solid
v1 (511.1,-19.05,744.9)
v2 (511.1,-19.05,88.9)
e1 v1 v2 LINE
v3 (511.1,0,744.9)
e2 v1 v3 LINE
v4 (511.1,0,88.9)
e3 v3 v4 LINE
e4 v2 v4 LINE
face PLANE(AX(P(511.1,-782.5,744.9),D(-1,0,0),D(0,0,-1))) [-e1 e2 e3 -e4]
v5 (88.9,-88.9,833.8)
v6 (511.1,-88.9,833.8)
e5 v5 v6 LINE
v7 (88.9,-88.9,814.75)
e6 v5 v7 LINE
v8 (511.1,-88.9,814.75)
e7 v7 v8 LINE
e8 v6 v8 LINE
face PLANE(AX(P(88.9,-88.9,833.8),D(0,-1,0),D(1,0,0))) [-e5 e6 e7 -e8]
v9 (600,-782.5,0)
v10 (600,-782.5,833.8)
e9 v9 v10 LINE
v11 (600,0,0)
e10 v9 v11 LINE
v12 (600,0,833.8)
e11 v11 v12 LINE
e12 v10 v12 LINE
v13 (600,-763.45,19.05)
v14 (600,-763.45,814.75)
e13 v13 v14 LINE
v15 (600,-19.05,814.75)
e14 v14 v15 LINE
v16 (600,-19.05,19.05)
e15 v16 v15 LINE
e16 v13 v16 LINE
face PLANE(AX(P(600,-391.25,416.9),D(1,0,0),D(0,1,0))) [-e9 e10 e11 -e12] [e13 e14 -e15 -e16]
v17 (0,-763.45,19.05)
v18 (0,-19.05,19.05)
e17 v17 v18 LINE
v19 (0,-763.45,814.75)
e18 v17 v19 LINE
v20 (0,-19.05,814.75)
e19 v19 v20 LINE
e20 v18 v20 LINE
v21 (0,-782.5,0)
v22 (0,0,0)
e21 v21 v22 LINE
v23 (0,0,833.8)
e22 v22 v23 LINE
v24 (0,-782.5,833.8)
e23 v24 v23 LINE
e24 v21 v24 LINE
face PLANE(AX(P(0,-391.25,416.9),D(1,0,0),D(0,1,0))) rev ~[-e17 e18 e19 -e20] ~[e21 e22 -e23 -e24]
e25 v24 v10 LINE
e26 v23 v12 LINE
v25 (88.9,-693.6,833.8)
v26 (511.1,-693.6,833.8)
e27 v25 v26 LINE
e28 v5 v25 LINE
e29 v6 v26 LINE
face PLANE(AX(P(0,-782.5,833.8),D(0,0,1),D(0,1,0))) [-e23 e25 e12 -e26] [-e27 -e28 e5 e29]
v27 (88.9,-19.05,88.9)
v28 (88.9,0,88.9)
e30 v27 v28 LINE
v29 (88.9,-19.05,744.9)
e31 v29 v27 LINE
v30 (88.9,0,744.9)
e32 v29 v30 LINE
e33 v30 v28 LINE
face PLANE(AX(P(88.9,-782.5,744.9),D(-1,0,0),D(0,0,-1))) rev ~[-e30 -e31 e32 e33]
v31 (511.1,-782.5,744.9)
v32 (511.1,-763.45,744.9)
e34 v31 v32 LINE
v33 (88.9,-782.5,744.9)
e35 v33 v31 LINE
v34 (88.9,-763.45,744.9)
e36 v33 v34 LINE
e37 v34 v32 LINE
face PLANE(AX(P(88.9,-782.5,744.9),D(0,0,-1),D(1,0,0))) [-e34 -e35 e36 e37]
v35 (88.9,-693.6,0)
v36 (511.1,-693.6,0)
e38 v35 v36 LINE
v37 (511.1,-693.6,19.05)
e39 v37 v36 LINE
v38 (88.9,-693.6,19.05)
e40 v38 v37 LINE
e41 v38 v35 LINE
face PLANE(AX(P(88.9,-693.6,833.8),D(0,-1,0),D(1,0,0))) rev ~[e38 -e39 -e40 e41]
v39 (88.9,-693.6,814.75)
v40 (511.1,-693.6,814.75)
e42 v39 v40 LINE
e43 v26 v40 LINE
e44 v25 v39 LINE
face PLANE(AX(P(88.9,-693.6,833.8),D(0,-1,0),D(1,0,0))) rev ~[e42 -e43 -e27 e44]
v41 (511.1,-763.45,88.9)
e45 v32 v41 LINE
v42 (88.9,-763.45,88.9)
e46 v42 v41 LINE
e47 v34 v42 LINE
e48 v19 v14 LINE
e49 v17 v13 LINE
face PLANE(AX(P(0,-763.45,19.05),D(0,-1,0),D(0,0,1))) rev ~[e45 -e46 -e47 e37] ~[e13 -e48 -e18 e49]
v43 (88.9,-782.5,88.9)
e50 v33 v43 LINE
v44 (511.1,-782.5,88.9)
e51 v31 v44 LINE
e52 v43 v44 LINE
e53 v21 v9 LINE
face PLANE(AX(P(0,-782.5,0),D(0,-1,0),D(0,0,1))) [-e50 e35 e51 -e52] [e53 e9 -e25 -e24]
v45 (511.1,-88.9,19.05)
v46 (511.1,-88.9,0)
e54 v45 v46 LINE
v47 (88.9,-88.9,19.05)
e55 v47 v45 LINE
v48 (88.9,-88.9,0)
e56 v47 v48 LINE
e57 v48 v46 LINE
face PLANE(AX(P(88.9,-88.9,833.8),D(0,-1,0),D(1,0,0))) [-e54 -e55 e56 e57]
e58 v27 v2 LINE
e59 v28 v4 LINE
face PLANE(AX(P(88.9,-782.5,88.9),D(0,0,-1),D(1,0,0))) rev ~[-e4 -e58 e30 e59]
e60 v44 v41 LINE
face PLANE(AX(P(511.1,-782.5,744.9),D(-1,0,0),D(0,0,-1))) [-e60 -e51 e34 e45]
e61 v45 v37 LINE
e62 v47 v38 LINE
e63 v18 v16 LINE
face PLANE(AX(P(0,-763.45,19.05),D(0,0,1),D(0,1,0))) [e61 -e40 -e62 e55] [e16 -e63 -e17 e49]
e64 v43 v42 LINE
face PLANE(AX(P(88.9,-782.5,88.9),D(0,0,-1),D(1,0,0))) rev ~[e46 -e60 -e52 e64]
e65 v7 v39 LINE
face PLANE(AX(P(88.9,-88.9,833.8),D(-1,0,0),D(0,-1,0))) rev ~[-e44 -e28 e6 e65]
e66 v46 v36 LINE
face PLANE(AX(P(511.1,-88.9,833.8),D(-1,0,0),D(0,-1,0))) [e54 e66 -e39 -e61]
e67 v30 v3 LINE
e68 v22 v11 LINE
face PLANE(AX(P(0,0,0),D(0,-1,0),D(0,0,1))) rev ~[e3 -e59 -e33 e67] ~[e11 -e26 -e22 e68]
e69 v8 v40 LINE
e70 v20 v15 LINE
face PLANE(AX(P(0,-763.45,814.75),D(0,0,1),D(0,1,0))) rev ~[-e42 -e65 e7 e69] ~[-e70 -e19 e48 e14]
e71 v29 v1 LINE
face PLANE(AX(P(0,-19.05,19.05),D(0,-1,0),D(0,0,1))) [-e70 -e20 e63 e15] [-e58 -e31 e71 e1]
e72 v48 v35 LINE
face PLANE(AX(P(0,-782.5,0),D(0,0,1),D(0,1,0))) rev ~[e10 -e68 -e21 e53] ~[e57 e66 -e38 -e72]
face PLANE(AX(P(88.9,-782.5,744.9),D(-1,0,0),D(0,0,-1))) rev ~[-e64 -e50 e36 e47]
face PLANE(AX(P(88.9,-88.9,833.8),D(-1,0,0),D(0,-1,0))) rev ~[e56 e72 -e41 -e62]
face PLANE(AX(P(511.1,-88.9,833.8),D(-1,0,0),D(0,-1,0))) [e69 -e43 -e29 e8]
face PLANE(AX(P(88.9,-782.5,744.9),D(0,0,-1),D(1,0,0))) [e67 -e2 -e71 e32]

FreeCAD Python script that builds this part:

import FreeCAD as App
import Part
import Sketcher
from FreeCAD import Vector

doc = App.newDocument("Part")
body = doc.addObject("PartDesign::Body", "Body")

# Sketch on YZ plane
sketch1 = body.newObject("Sketcher::SketchObject", "Sketch")
sketch1.AttachmentSupport = (doc.getObject("YZ_Plane"), [""])
sketch1.MapMode = "FlatFace"
sketch1.addGeometry([
    Part.LineSegment(Vector(-782, 834, 0), Vector(-782, 0, 0)),  # 0
    Part.LineSegment(Vector(-782, 0, 0), Vector(0, 0, 0)),  # 1
    Part.LineSegment(Vector(0, 0, 0), Vector(0, 834, 0)),  # 2
    Part.LineSegment(Vector(0, 834, 0), Vector(-782, 834, 0)),  # 3
    Part.LineSegment(Vector(-19, 19, 0), Vector(-763, 19, 0)),  # 4
    Part.LineSegment(Vector(-763, 19, 0), Vector(-763, 815, 0)),  # 5
    Part.LineSegment(Vector(-763, 815, 0), Vector(-19, 815, 0)),  # 6
    Part.LineSegment(Vector(-19, 815, 0), Vector(-19, 19, 0)),  # 7
], False)
sketch1.addConstraint([
    Sketcher.Constraint("Coincident", 0, 2, 1, 1),
    Sketcher.Constraint("Coincident", 1, 2, 2, 1),
    Sketcher.Constraint("Coincident", 2, 2, 3, 1),
    Sketcher.Constraint("Coincident", 3, 2, 0, 1),
    Sketcher.Constraint("Coincident", 4, 2, 5, 1),
    Sketcher.Constraint("Coincident", 5, 2, 6, 1),
    Sketcher.Constraint("Coincident", 6, 2, 7, 1),
    Sketcher.Constraint("Coincident", 7, 2, 4, 1),
    Sketcher.Constraint("Vertical", 0),
    Sketcher.Constraint("Horizontal", 1),
    Sketcher.Constraint("Vertical", 2),
    Sketcher.Constraint("Horizontal", 3),
    Sketcher.Constraint("Horizontal", 4),
    Sketcher.Constraint("Vertical", 5),
    Sketcher.Constraint("Horizontal", 6),
    Sketcher.Constraint("Vertical", 7),
    Sketcher.Constraint("Coincident", 1, 2, -1, 1),
    Sketcher.Constraint("DistanceX", 1, 1, 1, 2, 782.5),
    Sketcher.Constraint("DistanceX", 4, 2, 4, 1, 744.4),
    Sketcher.Constraint("DistanceY", 0, 2, 0, 1, 833.8),
    Sketcher.Constraint("DistanceY", 5, 1, 5, 2, 795.7),
    Sketcher.Constraint("DistanceX", 4, 2, -1, 1, 763.45),
    Sketcher.Constraint("DistanceY", -1, 1, 4, 2, 19.05),
])
pad1 = body.newObject("PartDesign::Pad", "Pad")
pad1.Profile = sketch1
pad1.Length = 600

# Sketch on XZ plane
sketch2 = body.newObject("Sketcher::SketchObject", "Sketch001")
sketch2.AttachmentSupport = (doc.getObject("XZ_Plane"), [""])
sketch2.MapMode = "FlatFace"
sketch2.AttachmentOffset = App.Placement(Vector(0, 0, 782.5), App.Rotation())
sketch2.addGeometry([
    Part.LineSegment(Vector(511, 745, 0), Vector(89, 745, 0)),
    Part.LineSegment(Vector(89, 745, 0), Vector(89, 89, 0)),
    Part.LineSegment(Vector(89, 89, 0), Vector(511, 89, 0)),
    Part.LineSegment(Vector(511, 89, 0), Vector(511, 745, 0)),
], False)
sketch2.addConstraint([
    Sketcher.Constraint("Coincident", 0, 2, 1, 1),
    Sketcher.Constraint("Coincident", 1, 2, 2, 1),
    Sketcher.Constraint("Coincident", 2, 2, 3, 1),
    Sketcher.Constraint("Coincident", 3, 2, 0, 1),
    Sketcher.Constraint("Horizontal", 0),
    Sketcher.Constraint("Vertical", 1),
    Sketcher.Constraint("Horizontal", 2),
    Sketcher.Constraint("Vertical", 3),
    Sketcher.Constraint("DistanceY", 1, 2, 1, 1, 656.0),
    Sketcher.Constraint("DistanceX", 0, 2, 0, 1, 422.2),
    Sketcher.Constraint("DistanceX", -1, 1, 0, 2, 88.9),
    Sketcher.Constraint("DistanceY", -1, 1, 0, 2, 744.9),
])
pocket1 = body.newObject("PartDesign::Pocket", "Pocket")
pocket1.Profile = sketch2
pocket1.Type = "ThroughAll"

# Sketch on XY plane
sketch3 = body.newObject("Sketcher::SketchObject", "Sketch002")
sketch3.AttachmentSupport = (doc.getObject("XY_Plane"), [""])
sketch3.MapMode = "FlatFace"
sketch3.AttachmentOffset = App.Placement(Vector(0, 0, 833.8), App.Rotation())
sketch3.addGeometry([
    Part.LineSegment(Vector(511, -89, 0), Vector(89, -89, 0)),
    Part.LineSegment(Vector(89, -89, 0), Vector(89, -694, 0)),
    Part.LineSegment(Vector(89, -694, 0), Vector(511, -694, 0)),
    Part.LineSegment(Vector(511, -694, 0), Vector(511, -89, 0)),
], False)
sketch3.addConstraint([
    Sketcher.Constraint("Coincident", 0, 2, 1, 1),
    Sketcher.Constraint("Coincident", 1, 2, 2, 1),
    Sketcher.Constraint("Coincident", 2, 2, 3, 1),
    Sketcher.Constraint("Coincident", 3, 2, 0, 1),
    Sketcher.Constraint("Horizontal", 0),
    Sketcher.Constraint("Vertical", 1),
    Sketcher.Constraint("Horizontal", 2),
    Sketcher.Constraint("Vertical", 3),
    Sketcher.Constraint("DistanceX", 0, 2, 0, 1, 422.2),
    Sketcher.Constraint("DistanceY", 1, 2, 1, 1, 604.7),
    Sketcher.Constraint("DistanceX", -1, 1, 0, 2, 88.9),
    Sketcher.Constraint("DistanceY", 0, 2, -1, 1, 88.9),
])
pocket2 = body.newObject("PartDesign::Pocket", "Pocket001")
pocket2.Profile = sketch3
pocket2.Type = "ThroughAll"

doc.recompute()
